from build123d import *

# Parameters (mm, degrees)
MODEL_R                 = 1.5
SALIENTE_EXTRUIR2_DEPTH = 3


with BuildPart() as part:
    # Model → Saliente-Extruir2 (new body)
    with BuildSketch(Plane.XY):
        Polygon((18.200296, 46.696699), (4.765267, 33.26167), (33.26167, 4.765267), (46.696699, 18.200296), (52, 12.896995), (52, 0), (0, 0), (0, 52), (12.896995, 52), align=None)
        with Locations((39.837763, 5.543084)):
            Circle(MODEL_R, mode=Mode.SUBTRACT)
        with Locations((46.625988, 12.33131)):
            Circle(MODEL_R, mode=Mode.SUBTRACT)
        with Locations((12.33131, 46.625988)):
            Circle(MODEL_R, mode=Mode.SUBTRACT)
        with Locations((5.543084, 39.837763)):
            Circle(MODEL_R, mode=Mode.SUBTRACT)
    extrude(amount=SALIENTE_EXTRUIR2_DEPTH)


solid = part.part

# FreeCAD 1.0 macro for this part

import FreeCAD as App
import Part
import Sketcher
Q = App.Units.Quantity

doc = App.newDocument("Part")
params = doc.addObject("Spreadsheet::Sheet", "Params")
for row, (alias, value) in enumerate([
    ("sketch1_diameter", "3 mm"),
    ("sketch1_width", "52 mm"),
    ("sketch1_length", "19 mm"),
    ("sketch1_length2", "7.5 mm"),
    ("sketch1_length3", "40.3 mm"),
    ("pad1_length", "3 mm"),
], start=1):
    params.set(f"A{row}", alias)
    params.set(f"B{row}", "=" + value)
    params.setAlias(f"B{row}", alias)

body = doc.addObject("PartDesign::Body", "Body")

# Sketch on XY plane
sketch1 = body.newObject("Sketcher::SketchObject", "Sketch")
sketch1.AttachmentSupport = (doc.getObject("XY_Plane"), [""])
sketch1.MapMode = "FlatFace"
sketch1.addGeometry(Part.LineSegment(App.Vector(4.765267, 33.26167, 0), App.Vector(18.200296, 46.696699, 0)), False)
sketch1.addGeometry(Part.LineSegment(App.Vector(18.200296, 46.696699, 0), App.Vector(12.896995, 52, 0)), False)
sketch1.addGeometry(Part.LineSegment(App.Vector(12.896995, 52, 0), App.Vector(0, 52, 0)), False)
sketch1.addGeometry(Part.LineSegment(App.Vector(0, 52, 0), App.Vector(0, 0, 0)), False)
sketch1.addGeometry(Part.LineSegment(App.Vector(0, 0, 0), App.Vector(52, 0, 0)), False)
sketch1.addGeometry(Part.LineSegment(App.Vector(52, 0, 0), App.Vector(52, 12.896995, 0)), False)
sketch1.addGeometry(Part.LineSegment(App.Vector(52, 12.896995, 0), App.Vector(46.696699, 18.200296, 0)), False)
sketch1.addGeometry(Part.LineSegment(App.Vector(46.696699, 18.200296, 0), App.Vector(33.26167, 4.765267, 0)), False)
sketch1.addGeometry(Part.LineSegment(App.Vector(33.26167, 4.765267, 0), App.Vector(4.765267, 33.26167, 0)), False)
sketch1.addGeometry(Part.Circle(App.Vector(39.837763, 5.543084, 0), App.Vector(0, 0, 1), 1.5), False)
sketch1.addGeometry(Part.Circle(App.Vector(46.625988, 12.33131, 0), App.Vector(0, 0, 1), 1.5), False)
sketch1.addGeometry(Part.Circle(App.Vector(5.543084, 39.837763, 0), App.Vector(0, 0, 1), 1.5), False)
sketch1.addGeometry(Part.Circle(App.Vector(12.33131, 46.625988, 0), App.Vector(0, 0, 1), 1.5), False)
sketch1.addConstraint(Sketcher.Constraint("Coincident", 0, 2, 1, 1))
sketch1.addConstraint(Sketcher.Constraint("Coincident", 1, 2, 2, 1))
sketch1.addConstraint(Sketcher.Constraint("Coincident", 2, 2, 3, 1))
sketch1.addConstraint(Sketcher.Constraint("Coincident", 3, 2, 4, 1))
sketch1.addConstraint(Sketcher.Constraint("Coincident", 4, 2, 5, 1))
sketch1.addConstraint(Sketcher.Constraint("Coincident", 5, 2, 6, 1))
sketch1.addConstraint(Sketcher.Constraint("Coincident", 6, 2, 7, 1))
sketch1.addConstraint(Sketcher.Constraint("Coincident", 7, 2, 8, 1))
sketch1.addConstraint(Sketcher.Constraint("Coincident", 8, 2, 0, 1))
sketch1.addConstraint(Sketcher.Constraint("Horizontal", 2))
sketch1.addConstraint(Sketcher.Constraint("Vertical", 3))
sketch1.addConstraint(Sketcher.Constraint("Horizontal", 4))
sketch1.addConstraint(Sketcher.Constraint("Vertical", 5))
sketch1.addConstraint(Sketcher.Constraint("Coincident", 3, 2, -1, 1))
sketch1.addConstraint(Sketcher.Constraint("Equal", 9, 10))
sketch1.addConstraint(Sketcher.Constraint("Equal", 10, 11))
sketch1.addConstraint(Sketcher.Constraint("Equal", 11, 12))
sketch1.addConstraint(Sketcher.Constraint("Perpendicular", 0, 1))
sketch1.addConstraint(Sketcher.Constraint("Parallel", 1, 6))
sketch1.addConstraint(Sketcher.Constraint("Perpendicular", 6, 7))
sketch1.addConstraint(Sketcher.Constraint("Perpendicular", 7, 8))
sketch1.addConstraint(Sketcher.Constraint("Equal", 4, 3))
sketch1.addConstraint(Sketcher.Constraint("Equal", 2, 5))
sketch1.addConstraint(Sketcher.Constraint("Equal", 1, 6))
sketch1.addConstraint(Sketcher.Constraint("Equal", 0, 7))
sketch1.addConstraint(Sketcher.Constraint("Diameter", 9, Q("3 mm")))
sketch1.addConstraint(Sketcher.Constraint("DistanceX", 4, 1, 4, 2, Q("52 mm")))
sketch1.addConstraint(Sketcher.Constraint("Distance", 0, Q("19 mm")))
sketch1.addConstraint(Sketcher.Constraint("Distance", 1, Q("7.5 mm")))
sketch1.addConstraint(Sketcher.Constraint("Distance", 8, Q("40.3 mm")))
sketch1.addConstraint(Sketcher.Constraint("DistanceY", -1, 1, 10, 3, Q("12.33131 mm")))
sketch1.addConstraint(Sketcher.Constraint("DistanceX", -1, 1, 12, 3, Q("12.33131 mm")))
sketch1.addConstraint(Sketcher.Constraint("DistanceX", 11, 3, 9, 3, Q("34.294679 mm")))
sketch1.addConstraint(Sketcher.Constraint("DistanceY", 9, 3, 11, 3, Q("34.294679 mm")))
sketch1.addConstraint(Sketcher.Constraint("DistanceY", 12, 3, 0, 2, Q("0.070711 mm")))
sketch1.addConstraint(Sketcher.Constraint("DistanceX", 0, 2, 10, 3, Q("28.425692 mm")))
sketch1.addConstraint(Sketcher.Constraint("DistanceX", 11, 3, 1, 2, Q("7.353911 mm")))
sketch1.addConstraint(Sketcher.Constraint("DistanceY", 9, 3, 5, 2, Q("7.353911 mm")))
sketch1.setExpression("Constraints[25]", "Params.sketch1_diameter")
sketch1.setExpression("Constraints[26]", "Params.sketch1_width")
sketch1.setExpression("Constraints[27]", "Params.sketch1_length")
sketch1.setExpression("Constraints[28]", "Params.sketch1_length2")
sketch1.setExpression("Constraints[29]", "Params.sketch1_length3")
pad1 = body.newObject("PartDesign::Pad", "Pad")
pad1.Profile = sketch1
pad1.setExpression("Length", "Params.pad1_length")

doc.recompute()
